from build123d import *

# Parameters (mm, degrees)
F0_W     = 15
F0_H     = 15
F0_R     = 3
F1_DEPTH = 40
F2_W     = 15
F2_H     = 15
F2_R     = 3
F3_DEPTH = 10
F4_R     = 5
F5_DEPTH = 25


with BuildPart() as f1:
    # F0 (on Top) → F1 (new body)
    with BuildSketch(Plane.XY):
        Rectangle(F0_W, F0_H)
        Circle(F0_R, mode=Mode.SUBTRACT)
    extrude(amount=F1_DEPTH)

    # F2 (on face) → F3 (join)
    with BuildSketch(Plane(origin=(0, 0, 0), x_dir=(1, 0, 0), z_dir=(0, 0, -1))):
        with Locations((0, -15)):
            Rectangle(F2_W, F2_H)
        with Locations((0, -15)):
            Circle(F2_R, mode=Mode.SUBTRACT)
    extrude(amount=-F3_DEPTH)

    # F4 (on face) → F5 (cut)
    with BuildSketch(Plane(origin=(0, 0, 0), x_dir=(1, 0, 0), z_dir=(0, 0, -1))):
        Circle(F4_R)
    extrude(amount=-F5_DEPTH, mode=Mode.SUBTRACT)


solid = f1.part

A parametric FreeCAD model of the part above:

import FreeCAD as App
import Part
import Sketcher


def add_polygon(sketch, points):
    """Adds a closed chain of lines whose ends are joined by coincident constraints."""
    first, n = sketch.GeometryCount, len(points)
    for a, b in zip(points, points[1:] + points[:1]):
        sketch.addGeometry(Part.LineSegment(App.Vector(*a, 0), App.Vector(*b, 0)), False)
    for i in range(n):
        sketch.addConstraint(Sketcher.Constraint("Coincident", first + i, 2, first + (i + 1) % n, 1))

doc = App.newDocument("Part")
body = doc.addObject("PartDesign::Body", "Body")

# Sketch on XY plane
sketch1 = body.newObject("Sketcher::SketchObject", "Sketch")
sketch1.AttachmentSupport = (doc.getObject("XY_Plane"), [""])
sketch1.MapMode = "FlatFace"
add_polygon(sketch1, [(-7.5, 7.5), (-7.5, -7.5), (7.5, -7.5), (7.5, 7.5)])  # lines 0-3
sketch1.addGeometry(Part.Circle(App.Vector(0, 0, 0), App.Vector(0, 0, 1), 3), False)  # 4
sketch1.addConstraint([
    Sketcher.Constraint("Vertical", 0),
    Sketcher.Constraint("Horizontal", 1),
    Sketcher.Constraint("Vertical", 2),
    Sketcher.Constraint("Horizontal", 3),
    Sketcher.Constraint("Coincident", 4, 3, -1, 1),
    Sketcher.Constraint("Symmetric", 0, 2, 2, 2, -1, 1),
    Sketcher.Constraint("Equal", 3, 0),
    Sketcher.Constraint("Diameter", 4, 6.0),
    Sketcher.Constraint("DistanceX", 1, 1, 1, 2, 15.0),
])
pad1 = body.newObject("PartDesign::Pad", "Pad")
pad1.Profile = sketch1
pad1.Length = 40

# Sketch on XY plane
sketch2 = body.newObject("Sketcher::SketchObject", "Sketch001")
sketch2.AttachmentSupport = (doc.getObject("XY_Plane"), [""])
sketch2.MapMode = "FlatFace"
add_polygon(sketch2, [(-7.5, 7.5), (-7.5, 22.5), (7.5, 22.5), (7.5, 7.5)])  # lines 0-3
sketch2.addGeometry(Part.Circle(App.Vector(0, 15, 0), App.Vector(0, 0, 1), 3), False)  # 4
sketch2.addConstraint([
    Sketcher.Constraint("Vertical", 0),
    Sketcher.Constraint("Horizontal", 1),
    Sketcher.Constraint("Vertical", 2),
    Sketcher.Constraint("Horizontal", 3),
    Sketcher.Constraint("PointOnObject", 4, 3, -2),
    Sketcher.Constraint("Equal", 3, 0),
    Sketcher.Constraint("Diameter", 4, 6.0),
    Sketcher.Constraint("DistanceX", 1, 1, 1, 2, 15.0),
    Sketcher.Constraint("DistanceY", -1, 1, 4, 3, 15.0),
    Sketcher.Constraint("DistanceX", 0, 2, -1, 1, 7.5),
    Sketcher.Constraint("DistanceY", -1, 1, 0, 2, 22.5),
])
pad2 = body.newObject("PartDesign::Pad", "Pad001")
pad2.Profile = sketch2
pad2.Length = 10

# Sketch on XY plane
sketch3 = body.newObject("Sketcher::SketchObject", "Sketch002")
sketch3.AttachmentSupport = (doc.getObject("XY_Plane"), [""])
sketch3.MapMode = "FlatFace"
sketch3.addGeometry(Part.Circle(App.Vector(0, 0, 0), App.Vector(0, 0, 1), 5), False)
sketch3.addConstraint([
    Sketcher.Constraint("Coincident", 0, 3, -1, 1),
    Sketcher.Constraint("Diameter", 0, 10.0),
])
pocket1 = body.newObject("PartDesign::Pocket", "Pocket")
pocket1.Profile = sketch3
pocket1.Length = 25
pocket1.Reversed = True

doc.recompute()
